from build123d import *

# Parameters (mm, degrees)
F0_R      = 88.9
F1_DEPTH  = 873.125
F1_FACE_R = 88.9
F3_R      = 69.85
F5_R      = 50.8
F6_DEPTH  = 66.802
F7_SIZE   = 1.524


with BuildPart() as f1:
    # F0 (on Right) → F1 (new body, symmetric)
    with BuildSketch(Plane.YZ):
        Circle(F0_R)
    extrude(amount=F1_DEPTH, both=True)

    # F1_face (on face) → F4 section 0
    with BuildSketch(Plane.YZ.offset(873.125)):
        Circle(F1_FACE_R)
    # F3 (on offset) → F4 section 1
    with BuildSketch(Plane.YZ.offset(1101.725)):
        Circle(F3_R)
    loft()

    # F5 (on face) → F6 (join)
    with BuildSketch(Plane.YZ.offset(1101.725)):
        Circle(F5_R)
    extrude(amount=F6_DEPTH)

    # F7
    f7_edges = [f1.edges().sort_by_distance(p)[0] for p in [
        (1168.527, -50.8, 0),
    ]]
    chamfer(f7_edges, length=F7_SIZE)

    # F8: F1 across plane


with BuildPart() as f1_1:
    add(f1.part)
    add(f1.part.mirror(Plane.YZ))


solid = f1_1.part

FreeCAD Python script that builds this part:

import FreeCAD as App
import Part
import Sketcher
Q = App.Units.Quantity


def edges_at(feature, points):
    """Names of the edges that pass closest to the given points."""
    edges = feature.Shape.Edges
    near = lambda p: min(range(len(edges)), key=lambda i: edges[i].distToShape(Part.Vertex(*p))[0])
    return sorted({f"Edge{near(p) + 1}" for p in points})

doc = App.newDocument("Part")
body = doc.addObject("PartDesign::Body", "Body")

sketch1 = doc.addObject("Sketcher::SketchObject", "Sketch")
body.addObject(sketch1)
sketch1.AttachmentSupport = (doc.YZ_Plane, [""])
sketch1.MapMode = "FlatFace"
sketch1.addGeometry(Part.Circle(App.Vector(0, 0, 0), App.Vector(0, 0, 1), 88.9), False)
sketch1.addConstraint([
    Sketcher.Constraint("Coincident", 0, 3, -1, 1),
    Sketcher.Constraint("Diameter", 0, Q("7 in")),
])
pad1 = doc.addObject("PartDesign::Pad", "Pad")
body.addObject(pad1)
pad1.Profile = sketch1
pad1.Length = Q("68.75 in")
pad1.Midplane = True

sketch2 = doc.addObject("Sketcher::SketchObject", "Sketch001")
body.addObject(sketch2)
sketch2.AttachmentSupport = (doc.YZ_Plane, [""])
sketch2.MapMode = "FlatFace"
sketch2.AttachmentOffset = App.Placement(App.Vector(0, 0, 34.375 * 25.4), App.Rotation())
sketch2.addGeometry(Part.Circle(App.Vector(0, 0, 0), App.Vector(0, 0, 1), 88.9), False)
sketch2.addConstraint([
    Sketcher.Constraint("Coincident", 0, 3, -1, 1),
    Sketcher.Constraint("Diameter", 0, Q("7 in")),
])

sketch3 = doc.addObject("Sketcher::SketchObject", "Sketch002")
body.addObject(sketch3)
sketch3.AttachmentSupport = (doc.YZ_Plane, [""])
sketch3.MapMode = "FlatFace"
sketch3.AttachmentOffset = App.Placement(App.Vector(0, 0, 43.375 * 25.4), App.Rotation())
sketch3.addGeometry(Part.Circle(App.Vector(0, 0, 0), App.Vector(0, 0, 1), 69.85), False)
sketch3.addConstraint([
    Sketcher.Constraint("Coincident", 0, 3, -1, 1),
    Sketcher.Constraint("Diameter", 0, Q("5.5 in")),
])

additiveloft = doc.addObject("PartDesign::AdditiveLoft", "AdditiveLoft")
body.addObject(additiveloft)
additiveloft.Profile = sketch2
additiveloft.Sections = [sketch3]

sketch4 = doc.addObject("Sketcher::SketchObject", "Sketch003")
body.addObject(sketch4)
sketch4.AttachmentSupport = (doc.YZ_Plane, [""])
sketch4.MapMode = "FlatFace"
sketch4.AttachmentOffset = App.Placement(App.Vector(0, 0, 43.375 * 25.4), App.Rotation())
sketch4.addGeometry(Part.Circle(App.Vector(0, 0, 0), App.Vector(0, 0, 1), 50.8), False)
sketch4.addConstraint([
    Sketcher.Constraint("Coincident", 0, 3, -1, 1),
    Sketcher.Constraint("Diameter", 0, Q("4 in")),
])
pad2 = doc.addObject("PartDesign::Pad", "Pad001")
body.addObject(pad2)
pad2.Profile = sketch4
pad2.Length = Q("2.63 in")
doc.recompute()

chamfer = doc.addObject("PartDesign::Chamfer", "Chamfer")
body.addObject(chamfer)
chamfer.Base = (pad2, edges_at(pad2, [(1168.527, -50.8, 0)]))
chamfer.Size = Q("0.06 in")
body2 = doc.addObject("PartDesign::Body", "Body001")
doc.recompute()

body2.BaseFeature = body
doc.recompute()

mirroring = doc.addObject("Part::Mirroring", "Mirroring")
mirroring.Source = body
mirroring.Base = App.Vector(0, 0, 0)
mirroring.Normal = App.Vector(1, 0, 0)
body3 = doc.addObject("PartDesign::Body", "Body002")
body3.BaseFeature = mirroring
boolean = doc.addObject("PartDesign::Boolean", "Boolean")
body2.addObject(boolean)
boolean.Type = "Fuse"
boolean.addObjects([body3])
doc.recompute()
mirroring.Visibility = False

doc.recompute()
